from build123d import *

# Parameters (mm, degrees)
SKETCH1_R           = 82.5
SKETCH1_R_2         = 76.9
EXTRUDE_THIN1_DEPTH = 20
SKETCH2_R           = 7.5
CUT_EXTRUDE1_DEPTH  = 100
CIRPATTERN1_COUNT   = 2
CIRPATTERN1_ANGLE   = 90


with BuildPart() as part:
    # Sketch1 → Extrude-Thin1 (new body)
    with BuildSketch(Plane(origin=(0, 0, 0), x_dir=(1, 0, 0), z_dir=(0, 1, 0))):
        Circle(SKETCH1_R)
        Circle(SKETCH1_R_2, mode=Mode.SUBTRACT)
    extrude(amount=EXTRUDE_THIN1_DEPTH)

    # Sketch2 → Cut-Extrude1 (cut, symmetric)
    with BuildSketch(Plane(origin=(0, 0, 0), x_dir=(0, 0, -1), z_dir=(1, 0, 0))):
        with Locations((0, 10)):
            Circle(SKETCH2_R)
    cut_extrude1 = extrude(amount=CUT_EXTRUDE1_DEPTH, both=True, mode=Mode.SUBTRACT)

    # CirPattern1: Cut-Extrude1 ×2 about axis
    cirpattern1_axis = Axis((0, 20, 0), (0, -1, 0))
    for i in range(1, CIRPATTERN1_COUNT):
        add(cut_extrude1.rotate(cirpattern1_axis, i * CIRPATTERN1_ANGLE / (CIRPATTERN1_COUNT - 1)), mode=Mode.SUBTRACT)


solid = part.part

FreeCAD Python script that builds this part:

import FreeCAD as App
import Part
import Sketcher
Q = App.Units.Quantity

doc = App.newDocument("Part")
body = doc.addObject("PartDesign::Body", "Body")

sketch1 = doc.addObject("Sketcher::SketchObject", "Sketch")
body.addObject(sketch1)
sketch1.AttachmentSupport = (doc.XZ_Plane, [""])
sketch1.MapMode = "FlatFace"
sketch1.addGeometry([
    Part.Circle(App.Vector(0, 0, 0), App.Vector(0, 0, 1), 82.5),
    Part.Circle(App.Vector(0, 0, 0), App.Vector(0, 0, 1), 76.9),
], False)
sketch1.addConstraint([
    Sketcher.Constraint("Coincident", 0, 3, -1, 1),
    Sketcher.Constraint("Coincident", 1, 3, -1, 1),
    Sketcher.Constraint("Diameter", 0, Q("165 mm")),
    Sketcher.Constraint("Diameter", 1, Q("153.8 mm")),
])
pad1 = doc.addObject("PartDesign::Pad", "Pad")
body.addObject(pad1)
pad1.Profile = sketch1
pad1.Length = 20
pad1.Reversed = True

sketch2 = doc.addObject("Sketcher::SketchObject", "Sketch001")
body.addObject(sketch2)
sketch2.AttachmentSupport = (doc.YZ_Plane, [""])
sketch2.MapMode = "FlatFace"
sketch2.addGeometry(Part.Circle(App.Vector(10, 0, 0), App.Vector(0, 0, 1), 7.5), False)
sketch2.addConstraint([
    Sketcher.Constraint("PointOnObject", 0, 3, -1),
    Sketcher.Constraint("Diameter", 0, Q("15 mm")),
    Sketcher.Constraint("DistanceX", -1, 1, 0, 3, Q("10 mm")),
])
pocket1 = doc.addObject("PartDesign::Pocket", "Pocket")
body.addObject(pocket1)
pocket1.Profile = sketch2
pocket1.Length = 200
pocket1.Midplane = True
doc.recompute()

polarpattern = doc.addObject("PartDesign::PolarPattern", "PolarPattern")
body.addObject(polarpattern)
polarpattern.Originals = [pocket1]
polarpattern.Axis = (doc.Y_Axis, [""])
polarpattern.Angle = 90
polarpattern.Occurrences = 2
polarpattern.Reversed = True
body.Tip = polarpattern

doc.recompute()
